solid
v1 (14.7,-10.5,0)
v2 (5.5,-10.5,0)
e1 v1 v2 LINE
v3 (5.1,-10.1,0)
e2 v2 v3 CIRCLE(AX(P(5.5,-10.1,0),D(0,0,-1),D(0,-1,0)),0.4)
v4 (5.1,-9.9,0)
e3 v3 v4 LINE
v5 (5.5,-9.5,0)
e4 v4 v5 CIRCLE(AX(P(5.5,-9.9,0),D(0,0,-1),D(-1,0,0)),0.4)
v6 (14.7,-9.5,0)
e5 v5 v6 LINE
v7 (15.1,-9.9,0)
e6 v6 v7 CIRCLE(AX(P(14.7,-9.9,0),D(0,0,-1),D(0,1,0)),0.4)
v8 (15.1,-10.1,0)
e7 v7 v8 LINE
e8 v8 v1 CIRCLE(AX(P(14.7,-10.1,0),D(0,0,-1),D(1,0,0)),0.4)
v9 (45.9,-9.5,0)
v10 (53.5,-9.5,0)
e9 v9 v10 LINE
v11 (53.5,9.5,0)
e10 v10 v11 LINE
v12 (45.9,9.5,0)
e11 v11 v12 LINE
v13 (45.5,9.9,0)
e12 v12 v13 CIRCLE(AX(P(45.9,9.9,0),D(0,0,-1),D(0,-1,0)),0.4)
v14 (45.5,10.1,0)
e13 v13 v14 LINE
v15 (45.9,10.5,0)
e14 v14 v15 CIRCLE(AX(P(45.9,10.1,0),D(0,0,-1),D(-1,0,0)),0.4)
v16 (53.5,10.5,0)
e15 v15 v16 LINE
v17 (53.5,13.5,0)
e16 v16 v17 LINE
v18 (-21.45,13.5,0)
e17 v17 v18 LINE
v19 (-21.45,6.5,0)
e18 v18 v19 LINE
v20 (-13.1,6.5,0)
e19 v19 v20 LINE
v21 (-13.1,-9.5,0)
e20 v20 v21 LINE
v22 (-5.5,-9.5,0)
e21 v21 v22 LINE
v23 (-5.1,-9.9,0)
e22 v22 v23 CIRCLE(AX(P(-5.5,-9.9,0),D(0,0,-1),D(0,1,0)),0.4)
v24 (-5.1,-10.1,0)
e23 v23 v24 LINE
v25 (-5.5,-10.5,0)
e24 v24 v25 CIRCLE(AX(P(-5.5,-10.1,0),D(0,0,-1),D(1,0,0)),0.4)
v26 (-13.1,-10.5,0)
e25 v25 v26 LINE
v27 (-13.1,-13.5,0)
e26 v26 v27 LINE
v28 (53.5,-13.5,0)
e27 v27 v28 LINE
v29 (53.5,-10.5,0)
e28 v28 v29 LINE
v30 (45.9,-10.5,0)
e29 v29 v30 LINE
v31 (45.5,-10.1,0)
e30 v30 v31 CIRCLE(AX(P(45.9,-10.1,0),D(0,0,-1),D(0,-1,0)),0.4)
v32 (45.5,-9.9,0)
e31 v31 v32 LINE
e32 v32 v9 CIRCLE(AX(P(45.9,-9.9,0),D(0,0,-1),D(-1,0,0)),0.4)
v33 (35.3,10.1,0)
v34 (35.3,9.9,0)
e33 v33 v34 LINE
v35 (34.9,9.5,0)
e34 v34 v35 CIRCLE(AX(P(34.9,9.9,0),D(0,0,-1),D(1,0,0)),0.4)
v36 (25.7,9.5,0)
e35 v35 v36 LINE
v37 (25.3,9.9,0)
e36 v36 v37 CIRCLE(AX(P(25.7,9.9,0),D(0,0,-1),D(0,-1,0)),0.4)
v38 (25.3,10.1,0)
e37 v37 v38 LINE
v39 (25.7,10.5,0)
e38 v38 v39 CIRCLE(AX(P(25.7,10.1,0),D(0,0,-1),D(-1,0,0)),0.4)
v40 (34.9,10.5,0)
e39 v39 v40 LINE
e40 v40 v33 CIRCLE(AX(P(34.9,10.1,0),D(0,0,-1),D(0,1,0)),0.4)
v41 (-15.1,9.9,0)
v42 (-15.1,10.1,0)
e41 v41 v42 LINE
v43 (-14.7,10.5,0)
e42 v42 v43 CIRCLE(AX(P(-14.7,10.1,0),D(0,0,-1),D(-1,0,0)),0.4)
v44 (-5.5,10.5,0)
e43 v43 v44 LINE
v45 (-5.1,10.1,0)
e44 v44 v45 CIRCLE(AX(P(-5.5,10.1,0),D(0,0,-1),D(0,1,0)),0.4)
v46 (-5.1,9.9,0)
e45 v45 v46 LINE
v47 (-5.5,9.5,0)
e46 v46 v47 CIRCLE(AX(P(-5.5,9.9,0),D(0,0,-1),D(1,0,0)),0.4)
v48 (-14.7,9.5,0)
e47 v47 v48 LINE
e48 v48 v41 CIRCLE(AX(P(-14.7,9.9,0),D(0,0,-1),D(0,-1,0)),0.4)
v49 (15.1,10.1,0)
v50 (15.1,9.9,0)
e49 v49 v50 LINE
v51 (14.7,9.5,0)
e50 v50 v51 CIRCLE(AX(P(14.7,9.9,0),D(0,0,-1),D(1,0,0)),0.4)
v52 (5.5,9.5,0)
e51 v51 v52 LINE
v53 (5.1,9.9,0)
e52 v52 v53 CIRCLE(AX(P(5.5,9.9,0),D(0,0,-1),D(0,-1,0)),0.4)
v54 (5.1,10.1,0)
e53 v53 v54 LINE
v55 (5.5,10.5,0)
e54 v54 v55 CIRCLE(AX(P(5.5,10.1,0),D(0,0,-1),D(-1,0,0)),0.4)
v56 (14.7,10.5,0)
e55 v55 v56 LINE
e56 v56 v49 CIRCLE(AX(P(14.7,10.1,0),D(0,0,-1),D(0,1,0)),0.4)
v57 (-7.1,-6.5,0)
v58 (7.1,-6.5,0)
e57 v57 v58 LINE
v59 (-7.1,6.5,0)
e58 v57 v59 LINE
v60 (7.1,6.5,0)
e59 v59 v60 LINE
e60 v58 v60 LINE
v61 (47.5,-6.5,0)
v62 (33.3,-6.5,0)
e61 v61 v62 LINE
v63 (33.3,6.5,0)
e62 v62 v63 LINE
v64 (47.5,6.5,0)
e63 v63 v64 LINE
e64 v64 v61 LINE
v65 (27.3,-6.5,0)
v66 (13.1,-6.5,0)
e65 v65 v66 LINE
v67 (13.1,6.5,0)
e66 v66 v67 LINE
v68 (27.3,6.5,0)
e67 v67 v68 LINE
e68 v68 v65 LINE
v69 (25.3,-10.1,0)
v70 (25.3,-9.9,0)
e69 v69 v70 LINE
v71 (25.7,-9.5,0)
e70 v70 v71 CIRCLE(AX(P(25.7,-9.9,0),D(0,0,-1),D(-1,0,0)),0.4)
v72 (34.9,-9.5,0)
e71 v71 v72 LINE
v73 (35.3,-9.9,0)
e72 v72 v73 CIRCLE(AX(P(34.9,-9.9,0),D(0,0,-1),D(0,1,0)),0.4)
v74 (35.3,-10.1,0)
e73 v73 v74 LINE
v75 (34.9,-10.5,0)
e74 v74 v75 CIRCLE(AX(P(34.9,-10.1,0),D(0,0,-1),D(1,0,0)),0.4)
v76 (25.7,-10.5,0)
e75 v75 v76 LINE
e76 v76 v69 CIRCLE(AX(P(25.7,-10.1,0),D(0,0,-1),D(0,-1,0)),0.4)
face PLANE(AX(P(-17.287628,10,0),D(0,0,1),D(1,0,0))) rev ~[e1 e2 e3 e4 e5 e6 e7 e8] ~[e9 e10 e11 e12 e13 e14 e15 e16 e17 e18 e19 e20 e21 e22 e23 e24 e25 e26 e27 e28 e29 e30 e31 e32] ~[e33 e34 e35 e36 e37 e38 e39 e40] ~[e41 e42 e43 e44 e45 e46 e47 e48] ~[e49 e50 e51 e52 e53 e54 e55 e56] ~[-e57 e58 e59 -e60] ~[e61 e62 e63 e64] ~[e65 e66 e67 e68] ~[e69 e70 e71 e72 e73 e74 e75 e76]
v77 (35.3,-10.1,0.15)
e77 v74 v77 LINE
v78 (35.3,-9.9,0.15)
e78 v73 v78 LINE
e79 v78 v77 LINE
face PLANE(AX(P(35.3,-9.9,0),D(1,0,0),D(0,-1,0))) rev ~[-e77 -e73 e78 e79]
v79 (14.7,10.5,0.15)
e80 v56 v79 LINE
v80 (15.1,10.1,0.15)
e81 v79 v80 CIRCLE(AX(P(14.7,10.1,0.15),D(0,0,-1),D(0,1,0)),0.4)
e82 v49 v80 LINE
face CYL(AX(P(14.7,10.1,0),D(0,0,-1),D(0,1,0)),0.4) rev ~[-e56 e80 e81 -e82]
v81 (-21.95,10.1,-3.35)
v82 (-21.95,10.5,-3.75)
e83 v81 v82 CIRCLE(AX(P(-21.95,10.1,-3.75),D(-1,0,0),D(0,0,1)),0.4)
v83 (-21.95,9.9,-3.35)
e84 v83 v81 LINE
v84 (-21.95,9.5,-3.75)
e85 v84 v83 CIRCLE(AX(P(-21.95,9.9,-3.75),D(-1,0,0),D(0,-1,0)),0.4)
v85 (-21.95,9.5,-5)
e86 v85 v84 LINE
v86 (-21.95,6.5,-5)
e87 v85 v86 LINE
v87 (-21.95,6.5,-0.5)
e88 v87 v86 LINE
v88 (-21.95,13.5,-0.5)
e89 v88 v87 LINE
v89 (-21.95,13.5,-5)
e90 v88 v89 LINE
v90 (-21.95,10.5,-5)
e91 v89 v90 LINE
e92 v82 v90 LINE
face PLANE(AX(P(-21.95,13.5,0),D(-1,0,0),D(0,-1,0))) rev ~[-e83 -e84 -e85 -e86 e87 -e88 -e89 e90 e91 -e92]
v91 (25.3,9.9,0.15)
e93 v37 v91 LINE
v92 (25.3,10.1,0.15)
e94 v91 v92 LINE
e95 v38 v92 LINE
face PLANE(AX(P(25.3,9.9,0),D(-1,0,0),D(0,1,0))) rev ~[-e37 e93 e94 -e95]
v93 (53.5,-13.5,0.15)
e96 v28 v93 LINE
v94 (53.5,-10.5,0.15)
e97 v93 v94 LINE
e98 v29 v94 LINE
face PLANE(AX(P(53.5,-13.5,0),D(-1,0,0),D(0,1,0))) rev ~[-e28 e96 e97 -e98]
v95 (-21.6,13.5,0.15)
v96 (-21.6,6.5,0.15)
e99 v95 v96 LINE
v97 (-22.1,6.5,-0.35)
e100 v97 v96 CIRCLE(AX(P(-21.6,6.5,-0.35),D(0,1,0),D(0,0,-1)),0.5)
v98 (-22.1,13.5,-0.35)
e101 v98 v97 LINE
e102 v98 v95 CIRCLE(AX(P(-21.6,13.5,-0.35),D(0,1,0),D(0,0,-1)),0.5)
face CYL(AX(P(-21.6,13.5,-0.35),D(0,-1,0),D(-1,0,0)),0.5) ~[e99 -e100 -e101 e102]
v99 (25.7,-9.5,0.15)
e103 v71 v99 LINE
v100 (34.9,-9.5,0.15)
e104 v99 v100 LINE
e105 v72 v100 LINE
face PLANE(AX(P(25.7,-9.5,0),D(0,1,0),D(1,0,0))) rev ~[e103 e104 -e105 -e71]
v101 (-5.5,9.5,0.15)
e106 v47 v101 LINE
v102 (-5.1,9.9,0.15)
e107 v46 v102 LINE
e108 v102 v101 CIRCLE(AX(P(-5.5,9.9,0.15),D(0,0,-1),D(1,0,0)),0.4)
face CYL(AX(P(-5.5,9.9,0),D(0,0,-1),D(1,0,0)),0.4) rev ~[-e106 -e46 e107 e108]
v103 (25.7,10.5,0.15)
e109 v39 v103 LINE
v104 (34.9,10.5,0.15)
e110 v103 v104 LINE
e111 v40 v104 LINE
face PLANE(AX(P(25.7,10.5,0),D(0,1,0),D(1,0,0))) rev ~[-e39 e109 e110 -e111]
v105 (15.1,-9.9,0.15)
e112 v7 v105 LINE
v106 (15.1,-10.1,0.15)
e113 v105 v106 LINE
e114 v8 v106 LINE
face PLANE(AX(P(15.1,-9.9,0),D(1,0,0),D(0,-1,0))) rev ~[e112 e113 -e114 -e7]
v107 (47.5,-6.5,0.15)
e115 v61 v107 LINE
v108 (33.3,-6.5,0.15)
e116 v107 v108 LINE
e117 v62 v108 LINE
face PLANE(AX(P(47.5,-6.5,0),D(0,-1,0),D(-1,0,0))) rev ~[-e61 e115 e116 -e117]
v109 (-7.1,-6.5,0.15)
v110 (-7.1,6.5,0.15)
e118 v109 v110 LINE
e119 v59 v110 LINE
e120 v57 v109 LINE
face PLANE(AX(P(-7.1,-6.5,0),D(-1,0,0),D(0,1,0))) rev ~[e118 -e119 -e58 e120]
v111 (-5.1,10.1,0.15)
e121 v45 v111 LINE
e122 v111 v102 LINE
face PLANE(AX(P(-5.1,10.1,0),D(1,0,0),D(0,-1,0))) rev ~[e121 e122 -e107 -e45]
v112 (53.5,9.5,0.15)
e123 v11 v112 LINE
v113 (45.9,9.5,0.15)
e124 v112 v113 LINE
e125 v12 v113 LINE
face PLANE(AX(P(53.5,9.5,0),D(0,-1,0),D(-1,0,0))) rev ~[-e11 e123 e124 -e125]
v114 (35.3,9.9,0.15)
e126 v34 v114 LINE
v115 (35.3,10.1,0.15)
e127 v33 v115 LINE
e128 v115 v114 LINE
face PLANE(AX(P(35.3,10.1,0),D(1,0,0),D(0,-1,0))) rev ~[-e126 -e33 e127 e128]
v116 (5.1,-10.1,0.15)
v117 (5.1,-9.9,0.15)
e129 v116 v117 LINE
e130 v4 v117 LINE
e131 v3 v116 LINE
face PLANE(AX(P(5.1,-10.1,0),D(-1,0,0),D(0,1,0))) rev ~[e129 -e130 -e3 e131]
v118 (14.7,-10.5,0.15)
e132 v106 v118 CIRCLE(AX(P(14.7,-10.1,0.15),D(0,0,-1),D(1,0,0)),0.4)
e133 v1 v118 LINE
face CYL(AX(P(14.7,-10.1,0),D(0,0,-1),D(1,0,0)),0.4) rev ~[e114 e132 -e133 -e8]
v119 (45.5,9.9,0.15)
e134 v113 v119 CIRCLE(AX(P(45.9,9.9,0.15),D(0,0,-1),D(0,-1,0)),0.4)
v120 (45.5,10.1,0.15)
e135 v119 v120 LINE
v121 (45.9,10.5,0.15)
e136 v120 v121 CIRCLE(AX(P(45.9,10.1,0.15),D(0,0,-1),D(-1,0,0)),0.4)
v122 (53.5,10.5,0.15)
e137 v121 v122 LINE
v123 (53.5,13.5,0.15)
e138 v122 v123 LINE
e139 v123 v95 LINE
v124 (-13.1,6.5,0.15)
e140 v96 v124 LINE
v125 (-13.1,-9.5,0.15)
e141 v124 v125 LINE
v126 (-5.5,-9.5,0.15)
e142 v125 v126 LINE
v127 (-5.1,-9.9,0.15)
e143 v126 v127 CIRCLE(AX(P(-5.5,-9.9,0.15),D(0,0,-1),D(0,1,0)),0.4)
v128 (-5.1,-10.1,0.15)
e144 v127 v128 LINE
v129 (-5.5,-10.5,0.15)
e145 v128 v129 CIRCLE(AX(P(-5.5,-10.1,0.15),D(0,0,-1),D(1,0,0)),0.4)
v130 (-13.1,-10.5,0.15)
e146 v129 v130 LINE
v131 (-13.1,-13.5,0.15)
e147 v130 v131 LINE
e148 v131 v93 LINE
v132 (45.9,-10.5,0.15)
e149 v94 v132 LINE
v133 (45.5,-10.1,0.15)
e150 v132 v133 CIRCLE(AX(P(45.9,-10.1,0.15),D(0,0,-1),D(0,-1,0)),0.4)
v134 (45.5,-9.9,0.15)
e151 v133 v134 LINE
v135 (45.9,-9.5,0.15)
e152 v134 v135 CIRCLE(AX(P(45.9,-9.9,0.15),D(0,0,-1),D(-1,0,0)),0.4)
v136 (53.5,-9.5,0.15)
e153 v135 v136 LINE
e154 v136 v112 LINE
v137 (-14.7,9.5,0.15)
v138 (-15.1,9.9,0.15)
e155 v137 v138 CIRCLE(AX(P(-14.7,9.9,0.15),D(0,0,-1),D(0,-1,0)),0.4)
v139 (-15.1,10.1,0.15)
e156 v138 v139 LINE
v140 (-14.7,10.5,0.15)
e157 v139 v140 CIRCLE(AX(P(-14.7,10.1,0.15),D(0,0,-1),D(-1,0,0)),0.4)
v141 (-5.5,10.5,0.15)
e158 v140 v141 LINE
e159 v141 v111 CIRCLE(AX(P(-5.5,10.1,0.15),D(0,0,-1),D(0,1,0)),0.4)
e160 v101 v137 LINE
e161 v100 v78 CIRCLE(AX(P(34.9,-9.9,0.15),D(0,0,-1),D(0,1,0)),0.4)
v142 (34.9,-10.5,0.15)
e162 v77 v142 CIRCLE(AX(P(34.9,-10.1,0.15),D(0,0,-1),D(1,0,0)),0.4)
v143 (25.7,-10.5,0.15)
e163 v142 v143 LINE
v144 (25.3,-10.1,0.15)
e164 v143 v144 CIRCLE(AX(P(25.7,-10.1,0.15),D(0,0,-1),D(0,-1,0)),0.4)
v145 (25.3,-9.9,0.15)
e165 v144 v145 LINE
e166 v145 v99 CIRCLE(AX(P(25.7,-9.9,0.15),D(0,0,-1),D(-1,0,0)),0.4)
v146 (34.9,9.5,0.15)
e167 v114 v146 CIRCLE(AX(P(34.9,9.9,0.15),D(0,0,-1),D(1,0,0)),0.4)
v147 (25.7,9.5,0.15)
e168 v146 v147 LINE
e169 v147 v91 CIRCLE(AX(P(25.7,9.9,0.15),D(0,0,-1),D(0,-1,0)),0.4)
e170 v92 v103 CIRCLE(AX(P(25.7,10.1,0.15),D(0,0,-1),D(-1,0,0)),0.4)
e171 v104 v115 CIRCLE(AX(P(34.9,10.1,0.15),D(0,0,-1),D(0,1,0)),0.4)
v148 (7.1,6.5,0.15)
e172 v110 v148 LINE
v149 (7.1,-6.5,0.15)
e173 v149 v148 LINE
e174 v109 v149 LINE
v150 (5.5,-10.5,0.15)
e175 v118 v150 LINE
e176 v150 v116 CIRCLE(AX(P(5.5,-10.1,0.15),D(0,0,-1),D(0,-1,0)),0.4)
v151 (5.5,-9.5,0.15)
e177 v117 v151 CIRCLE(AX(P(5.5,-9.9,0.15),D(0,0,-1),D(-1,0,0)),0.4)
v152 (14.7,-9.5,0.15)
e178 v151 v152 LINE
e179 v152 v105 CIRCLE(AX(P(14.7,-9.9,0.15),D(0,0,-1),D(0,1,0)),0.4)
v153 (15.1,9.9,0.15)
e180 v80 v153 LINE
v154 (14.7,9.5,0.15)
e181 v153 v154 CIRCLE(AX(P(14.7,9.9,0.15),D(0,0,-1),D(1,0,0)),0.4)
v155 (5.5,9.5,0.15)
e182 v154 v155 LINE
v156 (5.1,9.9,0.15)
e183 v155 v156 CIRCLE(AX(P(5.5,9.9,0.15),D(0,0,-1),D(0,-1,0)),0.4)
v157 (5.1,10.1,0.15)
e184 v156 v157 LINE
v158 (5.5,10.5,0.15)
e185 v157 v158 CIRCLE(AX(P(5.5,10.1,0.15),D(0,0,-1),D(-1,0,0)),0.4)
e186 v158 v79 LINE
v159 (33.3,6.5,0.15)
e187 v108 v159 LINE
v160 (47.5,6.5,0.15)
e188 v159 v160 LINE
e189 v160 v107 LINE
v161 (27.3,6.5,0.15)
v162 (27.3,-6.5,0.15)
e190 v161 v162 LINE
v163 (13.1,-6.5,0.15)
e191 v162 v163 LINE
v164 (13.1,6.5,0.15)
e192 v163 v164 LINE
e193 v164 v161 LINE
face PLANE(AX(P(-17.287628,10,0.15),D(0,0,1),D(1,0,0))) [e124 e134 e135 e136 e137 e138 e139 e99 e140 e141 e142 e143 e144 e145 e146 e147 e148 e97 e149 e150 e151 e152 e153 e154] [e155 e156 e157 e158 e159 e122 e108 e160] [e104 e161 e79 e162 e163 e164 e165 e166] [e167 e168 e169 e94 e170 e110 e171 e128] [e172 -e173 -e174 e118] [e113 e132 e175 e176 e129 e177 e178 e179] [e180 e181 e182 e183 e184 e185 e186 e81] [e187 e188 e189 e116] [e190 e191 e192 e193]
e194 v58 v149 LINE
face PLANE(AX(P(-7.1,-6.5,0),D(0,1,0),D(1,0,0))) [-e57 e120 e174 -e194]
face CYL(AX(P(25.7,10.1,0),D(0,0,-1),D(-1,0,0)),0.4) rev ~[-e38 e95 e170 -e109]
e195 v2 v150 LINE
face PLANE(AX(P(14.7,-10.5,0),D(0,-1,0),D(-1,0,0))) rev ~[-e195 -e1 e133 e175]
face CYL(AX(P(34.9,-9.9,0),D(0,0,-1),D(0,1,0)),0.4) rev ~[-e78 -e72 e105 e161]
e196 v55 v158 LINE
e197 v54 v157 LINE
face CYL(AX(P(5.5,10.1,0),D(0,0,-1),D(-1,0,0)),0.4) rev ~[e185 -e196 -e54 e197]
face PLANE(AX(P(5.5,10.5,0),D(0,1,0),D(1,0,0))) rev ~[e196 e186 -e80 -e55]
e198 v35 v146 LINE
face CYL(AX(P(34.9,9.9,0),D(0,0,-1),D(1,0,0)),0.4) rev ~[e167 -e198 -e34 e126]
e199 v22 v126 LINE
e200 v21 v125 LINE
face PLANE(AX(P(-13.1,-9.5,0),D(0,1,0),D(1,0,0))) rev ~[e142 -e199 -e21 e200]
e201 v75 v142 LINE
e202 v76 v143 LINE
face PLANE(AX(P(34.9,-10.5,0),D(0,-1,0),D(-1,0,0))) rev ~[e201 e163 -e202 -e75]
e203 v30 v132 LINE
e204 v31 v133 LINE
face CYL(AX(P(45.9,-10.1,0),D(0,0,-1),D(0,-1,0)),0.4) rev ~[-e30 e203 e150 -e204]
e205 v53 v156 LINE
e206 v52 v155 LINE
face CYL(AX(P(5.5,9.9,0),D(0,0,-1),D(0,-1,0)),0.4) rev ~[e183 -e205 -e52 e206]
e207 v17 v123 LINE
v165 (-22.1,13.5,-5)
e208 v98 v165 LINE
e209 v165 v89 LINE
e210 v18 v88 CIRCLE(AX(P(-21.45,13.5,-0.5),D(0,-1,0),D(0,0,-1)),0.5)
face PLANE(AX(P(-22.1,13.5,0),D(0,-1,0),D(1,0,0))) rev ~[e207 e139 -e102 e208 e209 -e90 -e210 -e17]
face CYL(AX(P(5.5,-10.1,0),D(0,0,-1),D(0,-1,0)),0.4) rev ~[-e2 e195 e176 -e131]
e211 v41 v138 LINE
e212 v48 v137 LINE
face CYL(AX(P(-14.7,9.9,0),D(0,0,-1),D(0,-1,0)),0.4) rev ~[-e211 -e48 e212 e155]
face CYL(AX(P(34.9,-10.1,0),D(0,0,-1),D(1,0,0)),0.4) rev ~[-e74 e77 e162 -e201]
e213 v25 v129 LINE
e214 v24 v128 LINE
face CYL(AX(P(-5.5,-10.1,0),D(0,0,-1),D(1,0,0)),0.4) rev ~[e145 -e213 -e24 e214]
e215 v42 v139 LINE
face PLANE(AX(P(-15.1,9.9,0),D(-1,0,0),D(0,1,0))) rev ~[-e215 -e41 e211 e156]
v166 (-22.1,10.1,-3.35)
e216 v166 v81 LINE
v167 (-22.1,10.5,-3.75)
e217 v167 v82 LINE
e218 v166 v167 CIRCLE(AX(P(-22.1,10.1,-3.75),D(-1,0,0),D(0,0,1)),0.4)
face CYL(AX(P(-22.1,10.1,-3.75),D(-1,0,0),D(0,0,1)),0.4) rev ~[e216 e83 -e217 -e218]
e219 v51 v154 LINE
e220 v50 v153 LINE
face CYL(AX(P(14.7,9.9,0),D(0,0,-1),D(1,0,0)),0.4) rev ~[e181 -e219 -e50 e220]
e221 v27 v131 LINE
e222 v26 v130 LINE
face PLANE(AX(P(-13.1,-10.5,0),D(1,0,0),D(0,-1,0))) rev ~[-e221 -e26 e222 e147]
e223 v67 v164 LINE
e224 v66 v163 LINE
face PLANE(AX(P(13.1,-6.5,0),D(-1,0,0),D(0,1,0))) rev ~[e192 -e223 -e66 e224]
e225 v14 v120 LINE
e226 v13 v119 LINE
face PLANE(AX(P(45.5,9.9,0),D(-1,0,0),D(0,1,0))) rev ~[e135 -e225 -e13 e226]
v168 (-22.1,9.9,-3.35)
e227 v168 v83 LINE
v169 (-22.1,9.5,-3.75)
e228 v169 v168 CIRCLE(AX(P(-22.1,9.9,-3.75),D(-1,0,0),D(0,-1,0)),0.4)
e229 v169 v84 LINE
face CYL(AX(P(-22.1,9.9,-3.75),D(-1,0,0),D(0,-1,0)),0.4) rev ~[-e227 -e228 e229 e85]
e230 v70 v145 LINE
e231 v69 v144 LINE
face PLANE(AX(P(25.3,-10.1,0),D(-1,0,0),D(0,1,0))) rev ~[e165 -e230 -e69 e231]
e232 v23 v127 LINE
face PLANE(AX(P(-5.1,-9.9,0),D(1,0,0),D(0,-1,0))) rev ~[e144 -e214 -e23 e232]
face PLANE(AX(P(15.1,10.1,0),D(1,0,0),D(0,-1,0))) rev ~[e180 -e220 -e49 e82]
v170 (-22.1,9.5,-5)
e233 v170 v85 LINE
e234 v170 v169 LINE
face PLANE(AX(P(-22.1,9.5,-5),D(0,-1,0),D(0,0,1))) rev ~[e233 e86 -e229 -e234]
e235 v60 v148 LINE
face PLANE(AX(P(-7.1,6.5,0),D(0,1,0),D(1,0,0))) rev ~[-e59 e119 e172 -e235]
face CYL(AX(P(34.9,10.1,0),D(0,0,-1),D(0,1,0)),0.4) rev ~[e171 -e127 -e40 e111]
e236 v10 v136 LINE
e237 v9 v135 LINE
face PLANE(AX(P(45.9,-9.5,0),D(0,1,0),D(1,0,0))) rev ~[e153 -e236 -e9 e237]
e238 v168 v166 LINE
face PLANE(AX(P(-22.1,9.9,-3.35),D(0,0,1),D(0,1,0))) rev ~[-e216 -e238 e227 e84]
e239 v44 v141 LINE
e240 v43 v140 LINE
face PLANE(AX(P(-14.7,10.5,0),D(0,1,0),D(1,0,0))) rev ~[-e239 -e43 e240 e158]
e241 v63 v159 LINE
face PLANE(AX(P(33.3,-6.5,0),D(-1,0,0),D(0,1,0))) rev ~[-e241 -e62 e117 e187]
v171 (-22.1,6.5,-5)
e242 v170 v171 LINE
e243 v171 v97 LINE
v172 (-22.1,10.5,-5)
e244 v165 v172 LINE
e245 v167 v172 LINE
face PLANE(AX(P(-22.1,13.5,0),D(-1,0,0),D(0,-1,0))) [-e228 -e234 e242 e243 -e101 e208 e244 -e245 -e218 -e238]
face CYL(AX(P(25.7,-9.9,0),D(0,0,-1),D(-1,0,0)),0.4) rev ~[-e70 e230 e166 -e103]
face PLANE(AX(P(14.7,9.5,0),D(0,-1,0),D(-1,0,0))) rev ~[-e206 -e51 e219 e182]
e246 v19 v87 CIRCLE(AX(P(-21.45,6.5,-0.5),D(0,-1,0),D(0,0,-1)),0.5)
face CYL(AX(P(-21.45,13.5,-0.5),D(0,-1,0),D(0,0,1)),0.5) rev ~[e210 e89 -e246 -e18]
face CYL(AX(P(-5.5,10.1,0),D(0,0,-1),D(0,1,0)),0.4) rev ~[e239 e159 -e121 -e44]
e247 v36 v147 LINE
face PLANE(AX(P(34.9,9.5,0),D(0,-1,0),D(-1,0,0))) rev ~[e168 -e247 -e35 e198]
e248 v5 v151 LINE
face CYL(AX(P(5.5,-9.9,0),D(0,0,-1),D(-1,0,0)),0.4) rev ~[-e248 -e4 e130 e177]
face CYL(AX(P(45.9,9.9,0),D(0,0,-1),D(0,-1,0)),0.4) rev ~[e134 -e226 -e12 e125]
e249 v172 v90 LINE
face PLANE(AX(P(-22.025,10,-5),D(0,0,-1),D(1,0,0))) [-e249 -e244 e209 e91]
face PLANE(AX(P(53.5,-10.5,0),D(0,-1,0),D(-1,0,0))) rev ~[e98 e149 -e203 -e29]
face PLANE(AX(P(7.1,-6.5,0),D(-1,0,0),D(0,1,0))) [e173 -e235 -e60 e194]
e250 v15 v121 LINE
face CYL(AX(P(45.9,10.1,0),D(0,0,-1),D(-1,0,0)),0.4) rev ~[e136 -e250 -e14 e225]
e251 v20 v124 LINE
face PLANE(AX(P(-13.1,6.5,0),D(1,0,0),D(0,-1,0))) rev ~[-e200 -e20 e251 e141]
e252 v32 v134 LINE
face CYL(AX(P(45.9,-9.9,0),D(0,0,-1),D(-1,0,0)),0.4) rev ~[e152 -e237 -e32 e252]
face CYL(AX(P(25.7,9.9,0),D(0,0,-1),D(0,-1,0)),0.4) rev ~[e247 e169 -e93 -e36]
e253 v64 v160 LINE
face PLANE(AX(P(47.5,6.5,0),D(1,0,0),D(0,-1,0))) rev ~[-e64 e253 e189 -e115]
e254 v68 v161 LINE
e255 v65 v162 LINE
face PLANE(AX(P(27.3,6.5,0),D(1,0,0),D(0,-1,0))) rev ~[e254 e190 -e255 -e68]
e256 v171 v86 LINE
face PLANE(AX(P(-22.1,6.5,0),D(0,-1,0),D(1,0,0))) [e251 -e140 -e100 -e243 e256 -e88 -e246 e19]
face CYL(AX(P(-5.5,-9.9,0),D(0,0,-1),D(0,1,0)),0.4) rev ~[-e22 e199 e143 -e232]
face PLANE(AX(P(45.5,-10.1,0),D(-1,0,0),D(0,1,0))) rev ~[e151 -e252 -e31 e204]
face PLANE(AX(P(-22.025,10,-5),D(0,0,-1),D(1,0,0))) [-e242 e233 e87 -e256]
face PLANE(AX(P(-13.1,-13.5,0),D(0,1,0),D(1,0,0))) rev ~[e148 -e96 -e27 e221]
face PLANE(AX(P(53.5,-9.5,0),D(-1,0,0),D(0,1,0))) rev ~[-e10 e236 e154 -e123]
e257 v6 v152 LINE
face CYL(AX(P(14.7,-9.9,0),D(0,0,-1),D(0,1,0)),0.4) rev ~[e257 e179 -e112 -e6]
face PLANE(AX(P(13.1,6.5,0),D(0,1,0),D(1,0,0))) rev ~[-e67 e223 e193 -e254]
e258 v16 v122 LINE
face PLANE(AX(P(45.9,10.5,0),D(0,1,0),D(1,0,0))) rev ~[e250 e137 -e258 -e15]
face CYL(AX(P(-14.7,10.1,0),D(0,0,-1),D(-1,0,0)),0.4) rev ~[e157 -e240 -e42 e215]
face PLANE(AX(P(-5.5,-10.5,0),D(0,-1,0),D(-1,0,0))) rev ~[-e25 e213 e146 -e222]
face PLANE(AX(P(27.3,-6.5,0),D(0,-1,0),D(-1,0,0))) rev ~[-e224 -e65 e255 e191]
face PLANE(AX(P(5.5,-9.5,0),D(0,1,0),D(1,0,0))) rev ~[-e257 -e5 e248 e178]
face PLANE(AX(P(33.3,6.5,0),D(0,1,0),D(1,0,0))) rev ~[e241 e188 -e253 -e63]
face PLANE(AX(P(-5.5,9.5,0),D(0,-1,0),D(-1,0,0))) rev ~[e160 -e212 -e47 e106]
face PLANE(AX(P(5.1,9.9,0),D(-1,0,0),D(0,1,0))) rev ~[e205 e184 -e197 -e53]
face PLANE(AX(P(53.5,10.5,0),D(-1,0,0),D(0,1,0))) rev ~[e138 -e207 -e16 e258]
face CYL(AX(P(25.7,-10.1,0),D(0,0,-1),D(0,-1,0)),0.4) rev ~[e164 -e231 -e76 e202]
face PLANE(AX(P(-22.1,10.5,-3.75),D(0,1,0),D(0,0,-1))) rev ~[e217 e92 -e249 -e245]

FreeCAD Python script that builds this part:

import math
import FreeCAD as App
import Part
import Sketcher

V = App.Vector


def edges_at(feature, points):
    """Names of the edges that pass closest to the given points."""
    edges = feature.Shape.Edges
    near = lambda p: min(range(len(edges)), key=lambda i: edges[i].distToShape(Part.Vertex(*p))[0])
    return sorted({f"Edge{near(p) + 1}" for p in points})


def add_polygon(sketch, points):
    """Adds a closed chain of lines whose ends are joined by coincident constraints."""
    first, n = sketch.GeometryCount, len(points)
    for a, b in zip(points, points[1:] + points[:1]):
        sketch.addGeometry(Part.LineSegment(App.Vector(*a, 0), App.Vector(*b, 0)), False)
    for i in range(n):
        sketch.addConstraint(Sketcher.Constraint("Coincident", first + i, 2, first + (i + 1) % n, 1))

doc = App.newDocument("Part")
body = doc.addObject("PartDesign::Body", "Body")

# Sketch on XY plane
sketch1 = doc.addObject("Sketcher::SketchObject", "Sketch")
body.addObject(sketch1)
sketch1.AttachmentSupport = (doc.XY_Plane, [""])
sketch1.MapMode = "FlatFace"
sketch1.addGeometry(Part.LineSegment(V(-22.1, 13.5, 0), V(-22.1, 6.5, 0)), False)  # 0
sketch1.addGeometry(Part.LineSegment(V(-22.1, 6.5, 0), V(-13.1, 6.5, 0)), False)  # 1
sketch1.addGeometry(Part.LineSegment(V(-13.1, 6.5, 0), V(-13.1, -9.5, 0)), False)  # 2
sketch1.addGeometry(Part.LineSegment(V(-13.1, -9.5, 0), V(-5.5, -9.5, 0)), False)  # 3
sketch1.addGeometry(Part.ArcOfCircle(Part.Circle(V(-5.5, -9.9, 0), V(0, 0, 1), 0.4), math.radians(0), math.radians(90)), False)  # 4
sketch1.addGeometry(Part.LineSegment(V(-5.1, -9.9, 0), V(-5.1, -10.1, 0)), False)  # 5
sketch1.addGeometry(Part.ArcOfCircle(Part.Circle(V(-5.5, -10.1, 0), V(0, 0, 1), 0.4), math.radians(-90), math.radians(0)), False)  # 6
sketch1.addGeometry(Part.LineSegment(V(-5.5, -10.5, 0), V(-13.1, -10.5, 0)), False)  # 7
sketch1.addGeometry(Part.LineSegment(V(-13.1, -10.5, 0), V(-13.1, -13.5, 0)), False)  # 8
sketch1.addGeometry(Part.LineSegment(V(-13.1, -13.5, 0), V(53.5, -13.5, 0)), False)  # 9
sketch1.addGeometry(Part.LineSegment(V(53.5, -13.5, 0), V(53.5, -10.5, 0)), False)  # 10
sketch1.addGeometry(Part.LineSegment(V(53.5, -10.5, 0), V(45.9, -10.5, 0)), False)  # 11
sketch1.addGeometry(Part.ArcOfCircle(Part.Circle(V(45.9, -10.1, 0), V(0, 0, 1), 0.4), math.radians(180), math.radians(270)), False)  # 12
sketch1.addGeometry(Part.LineSegment(V(45.5, -10.1, 0), V(45.5, -9.9, 0)), False)  # 13
sketch1.addGeometry(Part.ArcOfCircle(Part.Circle(V(45.9, -9.9, 0), V(0, 0, 1), 0.4), math.radians(90), math.radians(180)), False)  # 14
sketch1.addGeometry(Part.LineSegment(V(45.9, -9.5, 0), V(53.5, -9.5, 0)), False)  # 15
sketch1.addGeometry(Part.LineSegment(V(53.5, -9.5, 0), V(53.5, 9.5, 0)), False)  # 16
sketch1.addGeometry(Part.LineSegment(V(53.5, 9.5, 0), V(45.9, 9.5, 0)), False)  # 17
sketch1.addGeometry(Part.ArcOfCircle(Part.Circle(V(45.9, 9.9, 0), V(0, 0, 1), 0.4), math.radians(180), math.radians(270)), False)  # 18
sketch1.addGeometry(Part.LineSegment(V(45.5, 9.9, 0), V(45.5, 10.1, 0)), False)  # 19
sketch1.addGeometry(Part.ArcOfCircle(Part.Circle(V(45.9, 10.1, 0), V(0, 0, 1), 0.4), math.radians(90), math.radians(180)), False)  # 20
sketch1.addGeometry(Part.LineSegment(V(45.9, 10.5, 0), V(53.5, 10.5, 0)), False)  # 21
sketch1.addGeometry(Part.LineSegment(V(53.5, 10.5, 0), V(53.5, 13.5, 0)), False)  # 22
sketch1.addGeometry(Part.LineSegment(V(53.5, 13.5, 0), V(-22.1, 13.5, 0)), False)  # 23
sketch1.addGeometry(Part.LineSegment(V(5.5, 10.5, 0), V(14.7, 10.5, 0)), False)  # 24
sketch1.addGeometry(Part.ArcOfCircle(Part.Circle(V(14.7, 10.1, 0), V(0, 0, 1), 0.4), math.radians(0), math.radians(90)), False)  # 25
sketch1.addGeometry(Part.LineSegment(V(15.1, 10.1, 0), V(15.1, 9.9, 0)), False)  # 26
sketch1.addGeometry(Part.ArcOfCircle(Part.Circle(V(14.7, 9.9, 0), V(0, 0, 1), 0.4), math.radians(-90), math.radians(0)), False)  # 27
sketch1.addGeometry(Part.LineSegment(V(14.7, 9.5, 0), V(5.5, 9.5, 0)), False)  # 28
sketch1.addGeometry(Part.ArcOfCircle(Part.Circle(V(5.5, 9.9, 0), V(0, 0, 1), 0.4), math.radians(180), math.radians(270)), False)  # 29
sketch1.addGeometry(Part.LineSegment(V(5.1, 9.9, 0), V(5.1, 10.1, 0)), False)  # 30
sketch1.addGeometry(Part.ArcOfCircle(Part.Circle(V(5.5, 10.1, 0), V(0, 0, 1), 0.4), math.radians(90), math.radians(180)), False)  # 31
add_polygon(sketch1, [(13.1, -6.5), (13.1, 6.5), (27.3, 6.5), (27.3, -6.5)])  # lines 32-35
sketch1.addGeometry(Part.LineSegment(V(5.5, -9.5, 0), V(14.7, -9.5, 0)), False)  # 36
sketch1.addGeometry(Part.ArcOfCircle(Part.Circle(V(14.7, -9.9, 0), V(0, 0, 1), 0.4), math.radians(0), math.radians(90)), False)  # 37
sketch1.addGeometry(Part.LineSegment(V(15.1, -9.9, 0), V(15.1, -10.1, 0)), False)  # 38
sketch1.addGeometry(Part.ArcOfCircle(Part.Circle(V(14.7, -10.1, 0), V(0, 0, 1), 0.4), math.radians(-90), math.radians(0)), False)  # 39
sketch1.addGeometry(Part.LineSegment(V(14.7, -10.5, 0), V(5.5, -10.5, 0)), False)  # 40
sketch1.addGeometry(Part.ArcOfCircle(Part.Circle(V(5.5, -10.1, 0), V(0, 0, 1), 0.4), math.radians(180), math.radians(270)), False)  # 41
sketch1.addGeometry(Part.LineSegment(V(5.1, -10.1, 0), V(5.1, -9.9, 0)), False)  # 42
sketch1.addGeometry(Part.ArcOfCircle(Part.Circle(V(5.5, -9.9, 0), V(0, 0, 1), 0.4), math.radians(90), math.radians(180)), False)  # 43
add_polygon(sketch1, [(7.1, -6.5), (-7.1, -6.5), (-7.1, 6.5), (7.1, 6.5)])  # lines 44-47
sketch1.addGeometry(Part.ArcOfCircle(Part.Circle(V(-14.7, 9.9, 0), V(0, 0, 1), 0.4), math.radians(180), math.radians(270)), False)  # 48
sketch1.addGeometry(Part.LineSegment(V(-15.1, 9.9, 0), V(-15.1, 10.1, 0)), False)  # 49
sketch1.addGeometry(Part.ArcOfCircle(Part.Circle(V(-14.7, 10.1, 0), V(0, 0, 1), 0.4), math.radians(90), math.radians(180)), False)  # 50
sketch1.addGeometry(Part.LineSegment(V(-14.7, 10.5, 0), V(-5.5, 10.5, 0)), False)  # 51
sketch1.addGeometry(Part.ArcOfCircle(Part.Circle(V(-5.5, 10.1, 0), V(0, 0, 1), 0.4), math.radians(0), math.radians(90)), False)  # 52
sketch1.addGeometry(Part.LineSegment(V(-5.1, 10.1, 0), V(-5.1, 9.9, 0)), False)  # 53
sketch1.addGeometry(Part.ArcOfCircle(Part.Circle(V(-5.5, 9.9, 0), V(0, 0, 1), 0.4), math.radians(-90), math.radians(0)), False)  # 54
sketch1.addGeometry(Part.LineSegment(V(-5.5, 9.5, 0), V(-14.7, 9.5, 0)), False)  # 55
sketch1.addGeometry(Part.ArcOfCircle(Part.Circle(V(25.7, 10.1, 0), V(0, 0, 1), 0.4), math.radians(90), math.radians(180)), False)  # 56
sketch1.addGeometry(Part.LineSegment(V(25.7, 10.5, 0), V(34.9, 10.5, 0)), False)  # 57
sketch1.addGeometry(Part.ArcOfCircle(Part.Circle(V(34.9, 10.1, 0), V(0, 0, 1), 0.4), math.radians(0), math.radians(90)), False)  # 58
sketch1.addGeometry(Part.LineSegment(V(35.3, 10.1, 0), V(35.3, 9.9, 0)), False)  # 59
sketch1.addGeometry(Part.ArcOfCircle(Part.Circle(V(34.9, 9.9, 0), V(0, 0, 1), 0.4), math.radians(-90), math.radians(0)), False)  # 60
sketch1.addGeometry(Part.LineSegment(V(34.9, 9.5, 0), V(25.7, 9.5, 0)), False)  # 61
sketch1.addGeometry(Part.ArcOfCircle(Part.Circle(V(25.7, 9.9, 0), V(0, 0, 1), 0.4), math.radians(180), math.radians(270)), False)  # 62
sketch1.addGeometry(Part.LineSegment(V(25.3, 9.9, 0), V(25.3, 10.1, 0)), False)  # 63
sketch1.addGeometry(Part.ArcOfCircle(Part.Circle(V(25.7, -10.1, 0), V(0, 0, 1), 0.4), math.radians(180), math.radians(270)), False)  # 64
sketch1.addGeometry(Part.LineSegment(V(25.3, -10.1, 0), V(25.3, -9.9, 0)), False)  # 65
sketch1.addGeometry(Part.ArcOfCircle(Part.Circle(V(25.7, -9.9, 0), V(0, 0, 1), 0.4), math.radians(90), math.radians(180)), False)  # 66
sketch1.addGeometry(Part.LineSegment(V(25.7, -9.5, 0), V(34.9, -9.5, 0)), False)  # 67
sketch1.addGeometry(Part.ArcOfCircle(Part.Circle(V(34.9, -9.9, 0), V(0, 0, 1), 0.4), math.radians(0), math.radians(90)), False)  # 68
sketch1.addGeometry(Part.LineSegment(V(35.3, -9.9, 0), V(35.3, -10.1, 0)), False)  # 69
sketch1.addGeometry(Part.ArcOfCircle(Part.Circle(V(34.9, -10.1, 0), V(0, 0, 1), 0.4), math.radians(-90), math.radians(0)), False)  # 70
sketch1.addGeometry(Part.LineSegment(V(34.9, -10.5, 0), V(25.7, -10.5, 0)), False)  # 71
add_polygon(sketch1, [(33.3, -6.5), (33.3, 6.5), (47.5, 6.5), (47.5, -6.5)])  # lines 72-75
sketch1.addConstraint(Sketcher.Constraint("Coincident", 0, 2, 1, 1))
sketch1.addConstraint(Sketcher.Constraint("Coincident", 1, 2, 2, 1))
sketch1.addConstraint(Sketcher.Constraint("Coincident", 2, 2, 3, 1))
sketch1.addConstraint(Sketcher.Constraint("Tangent", 3, 2, 4, 2))
sketch1.addConstraint(Sketcher.Constraint("Tangent", 4, 1, 5, 1))
sketch1.addConstraint(Sketcher.Constraint("Tangent", 5, 2, 6, 2))
sketch1.addConstraint(Sketcher.Constraint("Tangent", 6, 1, 7, 1))
sketch1.addConstraint(Sketcher.Constraint("Coincident", 7, 2, 8, 1))
sketch1.addConstraint(Sketcher.Constraint("Coincident", 8, 2, 9, 1))
sketch1.addConstraint(Sketcher.Constraint("Coincident", 9, 2, 10, 1))
sketch1.addConstraint(Sketcher.Constraint("Coincident", 10, 2, 11, 1))
sketch1.addConstraint(Sketcher.Constraint("Tangent", 11, 2, 12, 2))
sketch1.addConstraint(Sketcher.Constraint("Tangent", 12, 1, 13, 1))
sketch1.addConstraint(Sketcher.Constraint("Tangent", 13, 2, 14, 2))
sketch1.addConstraint(Sketcher.Constraint("Tangent", 14, 1, 15, 1))
sketch1.addConstraint(Sketcher.Constraint("Coincident", 15, 2, 16, 1))
sketch1.addConstraint(Sketcher.Constraint("Coincident", 16, 2, 17, 1))
sketch1.addConstraint(Sketcher.Constraint("Tangent", 17, 2, 18, 2))
sketch1.addConstraint(Sketcher.Constraint("Tangent", 18, 1, 19, 1))
sketch1.addConstraint(Sketcher.Constraint("Tangent", 19, 2, 20, 2))
sketch1.addConstraint(Sketcher.Constraint("Tangent", 20, 1, 21, 1))
sketch1.addConstraint(Sketcher.Constraint("Coincident", 21, 2, 22, 1))
sketch1.addConstraint(Sketcher.Constraint("Coincident", 22, 2, 23, 1))
sketch1.addConstraint(Sketcher.Constraint("Coincident", 23, 2, 0, 1))
sketch1.addConstraint(Sketcher.Constraint("Tangent", 24, 2, 25, 2))
sketch1.addConstraint(Sketcher.Constraint("Tangent", 25, 1, 26, 1))
sketch1.addConstraint(Sketcher.Constraint("Tangent", 26, 2, 27, 2))
sketch1.addConstraint(Sketcher.Constraint("Tangent", 27, 1, 28, 1))
sketch1.addConstraint(Sketcher.Constraint("Tangent", 28, 2, 29, 2))
sketch1.addConstraint(Sketcher.Constraint("Tangent", 29, 1, 30, 1))
sketch1.addConstraint(Sketcher.Constraint("Tangent", 30, 2, 31, 2))
sketch1.addConstraint(Sketcher.Constraint("Tangent", 31, 1, 24, 1))
sketch1.addConstraint(Sketcher.Constraint("Tangent", 36, 2, 37, 2))
sketch1.addConstraint(Sketcher.Constraint("Tangent", 37, 1, 38, 1))
sketch1.addConstraint(Sketcher.Constraint("Tangent", 38, 2, 39, 2))
sketch1.addConstraint(Sketcher.Constraint("Tangent", 39, 1, 40, 1))
sketch1.addConstraint(Sketcher.Constraint("Tangent", 40, 2, 41, 2))
sketch1.addConstraint(Sketcher.Constraint("Tangent", 41, 1, 42, 1))
sketch1.addConstraint(Sketcher.Constraint("Tangent", 42, 2, 43, 2))
sketch1.addConstraint(Sketcher.Constraint("Tangent", 43, 1, 36, 1))
sketch1.addConstraint(Sketcher.Constraint("Tangent", 48, 1, 49, 1))
sketch1.addConstraint(Sketcher.Constraint("Tangent", 49, 2, 50, 2))
sketch1.addConstraint(Sketcher.Constraint("Tangent", 50, 1, 51, 1))
sketch1.addConstraint(Sketcher.Constraint("Tangent", 51, 2, 52, 2))
sketch1.addConstraint(Sketcher.Constraint("Tangent", 52, 1, 53, 1))
sketch1.addConstraint(Sketcher.Constraint("Tangent", 53, 2, 54, 2))
sketch1.addConstraint(Sketcher.Constraint("Tangent", 54, 1, 55, 1))
sketch1.addConstraint(Sketcher.Constraint("Tangent", 55, 2, 48, 2))
sketch1.addConstraint(Sketcher.Constraint("Tangent", 56, 1, 57, 1))
sketch1.addConstraint(Sketcher.Constraint("Tangent", 57, 2, 58, 2))
sketch1.addConstraint(Sketcher.Constraint("Tangent", 58, 1, 59, 1))
sketch1.addConstraint(Sketcher.Constraint("Tangent", 59, 2, 60, 2))
sketch1.addConstraint(Sketcher.Constraint("Tangent", 60, 1, 61, 1))
sketch1.addConstraint(Sketcher.Constraint("Tangent", 61, 2, 62, 2))
sketch1.addConstraint(Sketcher.Constraint("Tangent", 62, 1, 63, 1))
sketch1.addConstraint(Sketcher.Constraint("Tangent", 63, 2, 56, 2))
sketch1.addConstraint(Sketcher.Constraint("Tangent", 64, 1, 65, 1))
sketch1.addConstraint(Sketcher.Constraint("Tangent", 65, 2, 66, 2))
sketch1.addConstraint(Sketcher.Constraint("Tangent", 66, 1, 67, 1))
sketch1.addConstraint(Sketcher.Constraint("Tangent", 67, 2, 68, 2))
sketch1.addConstraint(Sketcher.Constraint("Tangent", 68, 1, 69, 1))
sketch1.addConstraint(Sketcher.Constraint("Tangent", 69, 2, 70, 2))
sketch1.addConstraint(Sketcher.Constraint("Tangent", 70, 1, 71, 1))
sketch1.addConstraint(Sketcher.Constraint("Tangent", 71, 2, 64, 2))
sketch1.addConstraint(Sketcher.Constraint("Vertical", 0))
sketch1.addConstraint(Sketcher.Constraint("Horizontal", 1))
sketch1.addConstraint(Sketcher.Constraint("Vertical", 2))
sketch1.addConstraint(Sketcher.Constraint("Horizontal", 3))
sketch1.addConstraint(Sketcher.Constraint("Vertical", 5))
sketch1.addConstraint(Sketcher.Constraint("Horizontal", 7))
sketch1.addConstraint(Sketcher.Constraint("Vertical", 8))
sketch1.addConstraint(Sketcher.Constraint("Horizontal", 9))
sketch1.addConstraint(Sketcher.Constraint("Vertical", 10))
sketch1.addConstraint(Sketcher.Constraint("Horizontal", 11))
sketch1.addConstraint(Sketcher.Constraint("Vertical", 13))
sketch1.addConstraint(Sketcher.Constraint("Horizontal", 15))
sketch1.addConstraint(Sketcher.Constraint("Vertical", 16))
sketch1.addConstraint(Sketcher.Constraint("Horizontal", 17))
sketch1.addConstraint(Sketcher.Constraint("Vertical", 19))
sketch1.addConstraint(Sketcher.Constraint("Horizontal", 21))
sketch1.addConstraint(Sketcher.Constraint("Vertical", 22))
sketch1.addConstraint(Sketcher.Constraint("Horizontal", 23))
sketch1.addConstraint(Sketcher.Constraint("Horizontal", 24))
sketch1.addConstraint(Sketcher.Constraint("Vertical", 26))
sketch1.addConstraint(Sketcher.Constraint("Horizontal", 28))
sketch1.addConstraint(Sketcher.Constraint("Vertical", 30))
sketch1.addConstraint(Sketcher.Constraint("Vertical", 32))
sketch1.addConstraint(Sketcher.Constraint("Horizontal", 33))
sketch1.addConstraint(Sketcher.Constraint("Vertical", 34))
sketch1.addConstraint(Sketcher.Constraint("Horizontal", 35))
sketch1.addConstraint(Sketcher.Constraint("Horizontal", 36))
sketch1.addConstraint(Sketcher.Constraint("Vertical", 38))
sketch1.addConstraint(Sketcher.Constraint("Horizontal", 40))
sketch1.addConstraint(Sketcher.Constraint("Vertical", 42))
sketch1.addConstraint(Sketcher.Constraint("Horizontal", 44))
sketch1.addConstraint(Sketcher.Constraint("Vertical", 45))
sketch1.addConstraint(Sketcher.Constraint("Horizontal", 46))
sketch1.addConstraint(Sketcher.Constraint("Vertical", 47))
sketch1.addConstraint(Sketcher.Constraint("Vertical", 49))
sketch1.addConstraint(Sketcher.Constraint("Horizontal", 51))
sketch1.addConstraint(Sketcher.Constraint("Vertical", 53))
sketch1.addConstraint(Sketcher.Constraint("Horizontal", 55))
sketch1.addConstraint(Sketcher.Constraint("Horizontal", 57))
sketch1.addConstraint(Sketcher.Constraint("Vertical", 59))
sketch1.addConstraint(Sketcher.Constraint("Horizontal", 61))
sketch1.addConstraint(Sketcher.Constraint("Vertical", 63))
sketch1.addConstraint(Sketcher.Constraint("Vertical", 65))
sketch1.addConstraint(Sketcher.Constraint("Horizontal", 67))
sketch1.addConstraint(Sketcher.Constraint("Vertical", 69))
sketch1.addConstraint(Sketcher.Constraint("Horizontal", 71))
sketch1.addConstraint(Sketcher.Constraint("Vertical", 72))
sketch1.addConstraint(Sketcher.Constraint("Horizontal", 73))
sketch1.addConstraint(Sketcher.Constraint("Vertical", 74))
sketch1.addConstraint(Sketcher.Constraint("Horizontal", 75))
sketch1.addConstraint(Sketcher.Constraint("Equal", 4, 6))
sketch1.addConstraint(Sketcher.Constraint("Equal", 6, 12))
sketch1.addConstraint(Sketcher.Constraint("Equal", 12, 14))
sketch1.addConstraint(Sketcher.Constraint("Equal", 14, 18))
sketch1.addConstraint(Sketcher.Constraint("Equal", 18, 20))
sketch1.addConstraint(Sketcher.Constraint("Equal", 20, 25))
sketch1.addConstraint(Sketcher.Constraint("Equal", 25, 27))
sketch1.addConstraint(Sketcher.Constraint("Equal", 27, 29))
sketch1.addConstraint(Sketcher.Constraint("Equal", 29, 31))
sketch1.addConstraint(Sketcher.Constraint("Equal", 31, 37))
sketch1.addConstraint(Sketcher.Constraint("Equal", 37, 39))
sketch1.addConstraint(Sketcher.Constraint("Equal", 39, 41))
sketch1.addConstraint(Sketcher.Constraint("Equal", 41, 43))
sketch1.addConstraint(Sketcher.Constraint("Equal", 43, 48))
sketch1.addConstraint(Sketcher.Constraint("Equal", 48, 50))
sketch1.addConstraint(Sketcher.Constraint("Equal", 50, 52))
sketch1.addConstraint(Sketcher.Constraint("Equal", 52, 54))
sketch1.addConstraint(Sketcher.Constraint("Equal", 54, 56))
sketch1.addConstraint(Sketcher.Constraint("Equal", 56, 58))
sketch1.addConstraint(Sketcher.Constraint("Equal", 58, 60))
sketch1.addConstraint(Sketcher.Constraint("Equal", 60, 62))
sketch1.addConstraint(Sketcher.Constraint("Equal", 62, 64))
sketch1.addConstraint(Sketcher.Constraint("Equal", 64, 66))
sketch1.addConstraint(Sketcher.Constraint("Equal", 66, 68))
sketch1.addConstraint(Sketcher.Constraint("Equal", 68, 70))
sketch1.addConstraint(Sketcher.Constraint("Symmetric", 4, 3, 29, 3, -1, 1))
sketch1.addConstraint(Sketcher.Constraint("Symmetric", 37, 3, 48, 3, -1, 1))
sketch1.addConstraint(Sketcher.Constraint("Symmetric", 41, 3, 52, 3, -1, 1))
sketch1.addConstraint(Sketcher.Constraint("Symmetric", 1, 2, 35, 2, -1, 1))
sketch1.addConstraint(Sketcher.Constraint("Symmetric", 44, 2, 46, 2, -1, 1))
sketch1.addConstraint(Sketcher.Constraint("Symmetric", 6, 3, 41, 3, -2))
sketch1.addConstraint(Sketcher.Constraint("Symmetric", 27, 3, 48, 3, -2))
sketch1.addConstraint(Sketcher.Constraint("Symmetric", 14, 3, 18, 3, -1))
sketch1.addConstraint(Sketcher.Constraint("Symmetric", 56, 3, 64, 3, -1))
sketch1.addConstraint(Sketcher.Constraint("Symmetric", 60, 3, 68, 3, -1))
sketch1.addConstraint(Sketcher.Constraint("Symmetric", 10, 2, 21, 2, -1))
sketch1.addConstraint(Sketcher.Constraint("Horizontal", 6, 3, 12, 3))
sketch1.addConstraint(Sketcher.Constraint("Horizontal", 4, 3, 14, 3))
sketch1.addConstraint(Sketcher.Constraint("Horizontal", 20, 3, 25, 3))
sketch1.addConstraint(Sketcher.Constraint("Horizontal", 52, 3, 56, 3))
sketch1.addConstraint(Sketcher.Constraint("Horizontal", 54, 3, 60, 3))
sketch1.addConstraint(Sketcher.Constraint("Horizontal", 1, 2, 32, 2))
sketch1.addConstraint(Sketcher.Constraint("Horizontal", 35, 2, 44, 2))
sketch1.addConstraint(Sketcher.Constraint("Horizontal", 46, 2, 72, 2))
sketch1.addConstraint(Sketcher.Constraint("Horizontal", 47, 2, 74, 2))
sketch1.addConstraint(Sketcher.Constraint("Vertical", 2, 2, 7, 2))
sketch1.addConstraint(Sketcher.Constraint("Vertical", 10, 2, 15, 2))
sketch1.addConstraint(Sketcher.Constraint("Equal", 7, 11))
sketch1.addConstraint(Sketcher.Constraint("Equal", 35, 44))
sketch1.addConstraint(Sketcher.Constraint("Equal", 55, 57))
sketch1.addConstraint(Sketcher.Constraint("Equal", 46, 73))
sketch1.addConstraint(Sketcher.Constraint("Equal", 10, 22))
sketch1.addConstraint(Sketcher.Constraint("Radius", 4, 0.4))
sketch1.addConstraint(Sketcher.Constraint("DistanceX", 1, 1, 1, 2, 9.0))
sketch1.addConstraint(Sketcher.Constraint("DistanceY", 0, 2, 0, 1, 7.0))
sketch1.addConstraint(Sketcher.Constraint("DistanceY", 2, 2, 2, 1, 16.0))
sketch1.addConstraint(Sketcher.Constraint("DistanceY", 8, 2, 8, 1, 3.0))
sketch1.addConstraint(Sketcher.Constraint("DistanceY", 16, 1, 16, 2, 19.0))
sketch1.addConstraint(Sketcher.Constraint("DistanceX", 3, 1, 3, 2, 7.6))
sketch1.addConstraint(Sketcher.Constraint("DistanceX", 9, 1, 9, 2, 66.6))
sketch1.addConstraint(Sketcher.Constraint("DistanceX", 24, 1, 24, 2, 9.2))
sketch1.addConstraint(Sketcher.Constraint("DistanceX", 33, 1, 33, 2, 14.2))
sketch1.addConstraint(Sketcher.Constraint("DistanceX", 4, 3, -1, 1, 5.5))
sketch1.addConstraint(Sketcher.Constraint("DistanceX", -1, 1, 56, 3, 25.7))
sketch1.addConstraint(Sketcher.Constraint("DistanceX", -1, 1, 72, 2, 33.3))
pad1 = doc.addObject("PartDesign::Pad", "Pad")
body.addObject(pad1)
pad1.Profile = sketch1
pad1.Length = 0.15

# Sketch on XY plane
sketch2 = doc.addObject("Sketcher::SketchObject", "Sketch001")
body.addObject(sketch2)
sketch2.AttachmentSupport = (doc.XY_Plane, [""])
sketch2.MapMode = "FlatFace"
add_polygon(sketch2, [(-22.1, 6.5), (-22.1, 13.5), (-21.95, 13.5), (-21.95, 6.5)])  # lines 0-3
sketch2.addConstraint(Sketcher.Constraint("Vertical", 0))
sketch2.addConstraint(Sketcher.Constraint("Horizontal", 1))
sketch2.addConstraint(Sketcher.Constraint("Vertical", 2))
sketch2.addConstraint(Sketcher.Constraint("Horizontal", 3))
sketch2.addConstraint(Sketcher.Constraint("DistanceY", 0, 1, 0, 2, 7.0))
sketch2.addConstraint(Sketcher.Constraint("DistanceX", 1, 1, 1, 2, 0.15))
sketch2.addConstraint(Sketcher.Constraint("DistanceX", 0, 2, -1, 1, 22.1))
sketch2.addConstraint(Sketcher.Constraint("DistanceY", -1, 1, 0, 2, 13.5))
pad2 = doc.addObject("PartDesign::Pad", "Pad001")
body.addObject(pad2)
pad2.Profile = sketch2
pad2.Length = 5
pad2.Reversed = True
doc.recompute()

fillet = doc.addObject("PartDesign::Fillet", "Fillet")
body.addObject(fillet)
fillet.Base = (pad2, edges_at(pad2, [(-21.95, 10, 0), (-22.1, 10, 0.15)]))
fillet.Radius = 0.5

# Sketch on YZ plane
sketch3 = doc.addObject("Sketcher::SketchObject", "Sketch002")
body.addObject(sketch3)
sketch3.AttachmentSupport = (doc.YZ_Plane, [""])
sketch3.MapMode = "FlatFace"
sketch3.AttachmentOffset = App.Placement(V(0, 0, -22.1), App.Rotation())
sketch3.addGeometry(Part.LineSegment(V(9.9, -3.35, 0), V(10.1, -3.35, 0)), False)
sketch3.addGeometry(Part.ArcOfCircle(Part.Circle(V(10.1, -3.75, 0), V(0, 0, 1), 0.4), math.radians(0), math.radians(90)), False)
sketch3.addGeometry(Part.LineSegment(V(10.5, -3.75, 0), V(10.5, -5, 0)), False)
sketch3.addGeometry(Part.LineSegment(V(10.5, -5, 0), V(9.5, -5, 0)), False)
sketch3.addGeometry(Part.LineSegment(V(9.5, -5, 0), V(9.5, -3.75, 0)), False)
sketch3.addGeometry(Part.ArcOfCircle(Part.Circle(V(9.9, -3.75, 0), V(0, 0, 1), 0.4), math.radians(90), math.radians(180)), False)
sketch3.addConstraint(Sketcher.Constraint("Tangent", 0, 2, 1, 2))
sketch3.addConstraint(Sketcher.Constraint("Tangent", 1, 1, 2, 1))
sketch3.addConstraint(Sketcher.Constraint("Coincident", 2, 2, 3, 1))
sketch3.addConstraint(Sketcher.Constraint("Coincident", 3, 2, 4, 1))
sketch3.addConstraint(Sketcher.Constraint("Tangent", 4, 2, 5, 2))
sketch3.addConstraint(Sketcher.Constraint("Tangent", 5, 1, 0, 1))
sketch3.addConstraint(Sketcher.Constraint("Horizontal", 0))
sketch3.addConstraint(Sketcher.Constraint("Vertical", 2))
sketch3.addConstraint(Sketcher.Constraint("Horizontal", 3))
sketch3.addConstraint(Sketcher.Constraint("Vertical", 4))
sketch3.addConstraint(Sketcher.Constraint("Equal", 1, 5))
sketch3.addConstraint(Sketcher.Constraint("Radius", 1, 0.4))
sketch3.addConstraint(Sketcher.Constraint("DistanceX", 3, 2, 3, 1, 1.0))
sketch3.addConstraint(Sketcher.Constraint("DistanceY", 2, 2, -1, 1, 5.0))
sketch3.addConstraint(Sketcher.Constraint("DistanceY", 2, 2, 2, 1, 1.25))
sketch3.addConstraint(Sketcher.Constraint("DistanceX", -1, 1, 1, 3, 10.1))
pocket1 = doc.addObject("PartDesign::Pocket", "Pocket")
body.addObject(pocket1)
pocket1.Profile = sketch3
pocket1.Length = 25
pocket1.Reversed = True

doc.recompute()
